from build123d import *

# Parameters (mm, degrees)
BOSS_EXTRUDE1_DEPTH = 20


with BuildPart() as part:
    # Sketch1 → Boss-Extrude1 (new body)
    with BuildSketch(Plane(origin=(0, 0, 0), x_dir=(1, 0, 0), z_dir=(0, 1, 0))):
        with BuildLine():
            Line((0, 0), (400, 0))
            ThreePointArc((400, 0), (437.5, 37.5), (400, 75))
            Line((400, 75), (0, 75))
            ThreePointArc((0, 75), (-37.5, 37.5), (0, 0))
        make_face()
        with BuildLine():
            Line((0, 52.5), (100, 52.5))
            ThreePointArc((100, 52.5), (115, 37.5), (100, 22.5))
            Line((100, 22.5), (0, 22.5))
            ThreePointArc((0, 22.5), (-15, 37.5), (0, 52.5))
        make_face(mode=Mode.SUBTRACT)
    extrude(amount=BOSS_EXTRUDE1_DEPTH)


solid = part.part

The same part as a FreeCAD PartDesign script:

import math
import FreeCAD as App
import Part
import Sketcher

doc = App.newDocument("Part")
body = doc.addObject("PartDesign::Body", "Body")

sketch1 = body.newObject("Sketcher::SketchObject", "Sketch")
sketch1.AttachmentSupport = (doc.getObject("XZ_Plane"), [""])
sketch1.MapMode = "FlatFace"
sketch1.addGeometry([
    Part.LineSegment(App.Vector(0, 0, 0), App.Vector(400, 0, 0)),
    Part.ArcOfCircle(Part.Circle(App.Vector(400, -37.5, 0), App.Vector(0, 0, 1), 37.5), math.radians(-90), math.radians(90)),
    Part.LineSegment(App.Vector(400, -75, 0), App.Vector(0, -75, 0)),
    Part.ArcOfCircle(Part.Circle(App.Vector(0, -37.5, 0), App.Vector(0, 0, 1), 37.5), math.radians(90), math.radians(270)),
    Part.ArcOfCircle(Part.Circle(App.Vector(0, -37.5, 0), App.Vector(0, 0, 1), 15), math.radians(90), math.radians(270)),
    Part.LineSegment(App.Vector(0, -52.5, 0), App.Vector(100, -52.5, 0)),
    Part.ArcOfCircle(Part.Circle(App.Vector(100, -37.5, 0), App.Vector(0, 0, 1), 15), math.radians(-90), math.radians(90)),
    Part.LineSegment(App.Vector(100, -22.5, 0), App.Vector(0, -22.5, 0)),
], False)
sketch1.addConstraint([
    Sketcher.Constraint("Tangent", 0, 2, 1, 2),
    Sketcher.Constraint("Tangent", 1, 1, 2, 1),
    Sketcher.Constraint("Tangent", 2, 2, 3, 2),
    Sketcher.Constraint("Tangent", 3, 1, 0, 1),
    Sketcher.Constraint("Tangent", 4, 2, 5, 1),
    Sketcher.Constraint("Tangent", 5, 2, 6, 1),
    Sketcher.Constraint("Tangent", 6, 2, 7, 1),
    Sketcher.Constraint("Tangent", 7, 2, 4, 1),
    Sketcher.Constraint("Horizontal", 0),
    Sketcher.Constraint("Horizontal", 2),
    Sketcher.Constraint("Horizontal", 5),
    Sketcher.Constraint("Horizontal", 7),
    Sketcher.Constraint("Coincident", 3, 1, -1, 1),
    Sketcher.Constraint("Coincident", 4, 3, 3, 3),
    Sketcher.Constraint("Radius", 4, 15.0),
    Sketcher.Constraint("Radius", 1, 37.5),
    Sketcher.Constraint("DistanceX", 0, 1, 0, 2, 400.0),
    Sketcher.Constraint("DistanceX", 5, 1, 5, 2, 100.0),
])
pad1 = body.newObject("PartDesign::Pad", "Pad")
pad1.Profile = sketch1
pad1.Length = 20
pad1.Reversed = True

doc.recompute()
